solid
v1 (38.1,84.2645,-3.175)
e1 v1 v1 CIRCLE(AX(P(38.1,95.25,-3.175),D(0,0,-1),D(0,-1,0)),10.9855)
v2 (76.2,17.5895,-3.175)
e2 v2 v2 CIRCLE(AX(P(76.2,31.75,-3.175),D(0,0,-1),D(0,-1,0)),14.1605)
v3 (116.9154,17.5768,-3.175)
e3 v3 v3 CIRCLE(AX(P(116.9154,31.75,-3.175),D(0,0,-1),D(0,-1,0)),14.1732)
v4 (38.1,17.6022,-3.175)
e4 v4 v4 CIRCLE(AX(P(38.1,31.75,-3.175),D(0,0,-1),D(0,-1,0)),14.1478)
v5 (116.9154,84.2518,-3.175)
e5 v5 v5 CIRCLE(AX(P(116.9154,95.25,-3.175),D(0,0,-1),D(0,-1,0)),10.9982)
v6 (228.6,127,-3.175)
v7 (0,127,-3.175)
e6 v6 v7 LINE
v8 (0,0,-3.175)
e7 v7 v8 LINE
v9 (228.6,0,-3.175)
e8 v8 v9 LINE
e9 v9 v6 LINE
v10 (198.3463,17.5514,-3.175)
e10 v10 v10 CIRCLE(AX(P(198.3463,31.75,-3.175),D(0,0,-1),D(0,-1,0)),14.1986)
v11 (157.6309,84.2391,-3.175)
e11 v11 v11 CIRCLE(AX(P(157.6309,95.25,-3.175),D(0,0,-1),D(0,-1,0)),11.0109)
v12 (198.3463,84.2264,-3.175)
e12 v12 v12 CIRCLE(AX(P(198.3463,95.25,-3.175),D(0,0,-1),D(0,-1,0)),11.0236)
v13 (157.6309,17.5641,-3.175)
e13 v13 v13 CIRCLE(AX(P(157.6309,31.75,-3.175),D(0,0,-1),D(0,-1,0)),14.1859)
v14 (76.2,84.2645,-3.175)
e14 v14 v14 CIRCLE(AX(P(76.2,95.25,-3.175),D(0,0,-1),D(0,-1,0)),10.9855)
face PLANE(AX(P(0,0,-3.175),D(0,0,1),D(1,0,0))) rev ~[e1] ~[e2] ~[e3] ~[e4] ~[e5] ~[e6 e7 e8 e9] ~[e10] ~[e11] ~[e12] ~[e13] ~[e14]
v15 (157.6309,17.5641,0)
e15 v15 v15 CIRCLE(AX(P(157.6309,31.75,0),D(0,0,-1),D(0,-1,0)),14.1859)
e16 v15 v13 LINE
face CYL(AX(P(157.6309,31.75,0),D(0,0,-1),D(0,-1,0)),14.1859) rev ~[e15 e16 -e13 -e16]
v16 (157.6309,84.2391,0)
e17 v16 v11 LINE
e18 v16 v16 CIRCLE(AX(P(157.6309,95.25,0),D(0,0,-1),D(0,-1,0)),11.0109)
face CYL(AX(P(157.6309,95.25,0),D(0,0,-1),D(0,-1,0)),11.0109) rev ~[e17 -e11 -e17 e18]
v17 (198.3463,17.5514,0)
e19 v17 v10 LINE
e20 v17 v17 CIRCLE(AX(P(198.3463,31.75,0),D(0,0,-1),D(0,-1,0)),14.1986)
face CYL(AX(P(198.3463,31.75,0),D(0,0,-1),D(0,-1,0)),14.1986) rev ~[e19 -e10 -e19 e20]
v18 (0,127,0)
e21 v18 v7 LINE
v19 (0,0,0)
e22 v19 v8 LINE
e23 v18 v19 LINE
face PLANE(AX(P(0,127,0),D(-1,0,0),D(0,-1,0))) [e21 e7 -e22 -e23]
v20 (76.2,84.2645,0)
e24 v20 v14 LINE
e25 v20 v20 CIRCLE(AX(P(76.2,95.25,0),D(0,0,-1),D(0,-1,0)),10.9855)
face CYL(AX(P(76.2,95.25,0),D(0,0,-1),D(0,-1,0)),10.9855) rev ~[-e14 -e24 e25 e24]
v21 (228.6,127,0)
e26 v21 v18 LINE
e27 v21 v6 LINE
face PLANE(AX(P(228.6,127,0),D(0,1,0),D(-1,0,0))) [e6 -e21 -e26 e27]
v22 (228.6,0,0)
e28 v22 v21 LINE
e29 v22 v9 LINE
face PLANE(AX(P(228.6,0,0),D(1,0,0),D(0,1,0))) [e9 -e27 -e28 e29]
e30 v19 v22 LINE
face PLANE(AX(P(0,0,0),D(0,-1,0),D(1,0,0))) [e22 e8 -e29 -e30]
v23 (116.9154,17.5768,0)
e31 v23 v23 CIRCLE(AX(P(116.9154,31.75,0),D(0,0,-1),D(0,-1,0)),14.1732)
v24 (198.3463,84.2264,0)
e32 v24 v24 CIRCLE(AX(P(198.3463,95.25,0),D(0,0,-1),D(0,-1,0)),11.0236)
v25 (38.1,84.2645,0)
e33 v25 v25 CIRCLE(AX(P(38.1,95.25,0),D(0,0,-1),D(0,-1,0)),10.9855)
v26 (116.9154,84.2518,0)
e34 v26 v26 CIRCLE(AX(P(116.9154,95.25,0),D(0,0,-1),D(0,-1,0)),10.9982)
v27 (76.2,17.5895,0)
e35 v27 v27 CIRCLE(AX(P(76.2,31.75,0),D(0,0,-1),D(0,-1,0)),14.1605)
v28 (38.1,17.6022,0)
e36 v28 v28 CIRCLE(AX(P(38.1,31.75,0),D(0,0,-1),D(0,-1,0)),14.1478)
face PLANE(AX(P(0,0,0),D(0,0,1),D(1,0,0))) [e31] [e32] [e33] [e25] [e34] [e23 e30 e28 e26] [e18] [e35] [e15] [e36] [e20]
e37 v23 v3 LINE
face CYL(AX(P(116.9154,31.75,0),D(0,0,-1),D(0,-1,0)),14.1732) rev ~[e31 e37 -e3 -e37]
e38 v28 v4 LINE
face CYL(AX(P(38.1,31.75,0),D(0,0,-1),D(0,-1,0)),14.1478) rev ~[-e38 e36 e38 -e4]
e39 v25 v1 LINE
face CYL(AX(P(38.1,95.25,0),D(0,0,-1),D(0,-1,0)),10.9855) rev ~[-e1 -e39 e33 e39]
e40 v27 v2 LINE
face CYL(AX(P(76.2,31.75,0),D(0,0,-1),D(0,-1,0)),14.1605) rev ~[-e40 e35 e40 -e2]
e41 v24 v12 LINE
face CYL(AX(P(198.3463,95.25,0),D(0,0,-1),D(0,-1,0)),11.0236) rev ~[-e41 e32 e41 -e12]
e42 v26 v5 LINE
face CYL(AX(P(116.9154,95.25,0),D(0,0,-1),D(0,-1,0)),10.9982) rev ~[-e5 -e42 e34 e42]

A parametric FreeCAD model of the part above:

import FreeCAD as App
import Part
import Sketcher
from FreeCAD import Vector
Q = App.Units.Quantity


def add_polygon(sketch, points):
    """Adds a closed chain of lines whose ends are joined by coincident constraints."""
    first, n = sketch.GeometryCount, len(points)
    for a, b in zip(points, points[1:] + points[:1]):
        sketch.addGeometry(Part.LineSegment(App.Vector(*a, 0), App.Vector(*b, 0)), False)
    for i in range(n):
        sketch.addConstraint(Sketcher.Constraint("Coincident", first + i, 2, first + (i + 1) % n, 1))

doc = App.newDocument("Part")
params = doc.addObject("Spreadsheet::Sheet", "Params")
for row, (alias, value) in enumerate([
    ("sketch1_width", "9 in"),
    ("sketch1_height", "5 in"),
    ("pad1_length", "0.125 in"),
    ("sketch2_diameter", "1.114 in"),
    ("hole_diameter", "1.114 in"),
    ("sketch3_diameter", "1.115 in"),
    ("hole2_diameter", "1.115 in"),
    ("sketch4_diameter", "1.116 in"),
    ("hole3_diameter", "1.116 in"),
    ("sketch5_diameter", "1.117 in"),
    ("hole4_diameter", "1.117 in"),
    ("sketch6_diameter", "1.118 in"),
    ("hole5_diameter", "1.118 in"),
    ("sketch7_diameter", "0.865 in"),
    ("hole6_diameter", "0.865 in"),
    ("sketch8_diameter", "0.865 in"),
    ("hole7_diameter", "0.865 in"),
    ("sketch9_diameter", "0.866 in"),
    ("hole8_diameter", "0.866 in"),
    ("sketch10_diameter", "0.867 in"),
    ("hole9_diameter", "0.867 in"),
    ("sketch11_diameter", "0.868 in"),
    ("hole10_diameter", "0.868 in"),
], start=1):
    params.set(f"A{row}", alias)
    params.set(f"B{row}", "=" + value)
    params.setAlias(f"B{row}", alias)

body = doc.addObject("PartDesign::Body", "Body")

sketch1 = body.newObject("Sketcher::SketchObject", "Sketch")
sketch1.AttachmentSupport = (doc.getObject("XY_Plane"), [""])
sketch1.MapMode = "FlatFace"
add_polygon(sketch1, [(0, 127), (0, 0), (229, 0), (229, 127)])
sketch1.addConstraint(Sketcher.Constraint("Vertical", 0))
sketch1.addConstraint(Sketcher.Constraint("Horizontal", 1))
sketch1.addConstraint(Sketcher.Constraint("Vertical", 2))
sketch1.addConstraint(Sketcher.Constraint("Horizontal", 3))
sketch1.addConstraint(Sketcher.Constraint("Coincident", 0, 2, -1, 1))
sketch1.addConstraint(Sketcher.Constraint("DistanceX", 1, 1, 1, 2, Q("9 in")))
sketch1.addConstraint(Sketcher.Constraint("DistanceY", 0, 2, 0, 1, Q("5 in")))
sketch1.setExpression("Constraints[9]", "Params.sketch1_width")
sketch1.setExpression("Constraints[10]", "Params.sketch1_height")
pad1 = body.newObject("PartDesign::Pad", "Pad")
pad1.Profile = sketch1
pad1.setExpression("Length", "Params.pad1_length")
pad1.Reversed = True

sketch2 = body.newObject("Sketcher::SketchObject", "Sketch001")
sketch2.AttachmentSupport = (doc.getObject("XY_Plane"), [""])
sketch2.MapMode = "FlatFace"
sketch2.addGeometry(Part.Circle(Vector(38, 32, 0), Vector(0, 0, 1), 14), False)
sketch2.addConstraint(Sketcher.Constraint("Diameter", 0, Q("1.114 in")))
sketch2.addConstraint(Sketcher.Constraint("DistanceX", -1, 1, 0, 3, Q("1.5 in")))
sketch2.addConstraint(Sketcher.Constraint("DistanceY", -1, 1, 0, 3, Q("1.25 in")))
sketch2.setExpression("Constraints[0]", "Params.sketch2_diameter")
doc.recompute()
hole = body.newObject("PartDesign::Hole", "Hole")
hole.Profile = sketch2
hole.ThreadType = "None"
hole.setExpression("Diameter", "Params.hole_diameter")
hole.DepthType = "ThroughAll"

sketch3 = body.newObject("Sketcher::SketchObject", "Sketch002")
sketch3.AttachmentSupport = (doc.getObject("XY_Plane"), [""])
sketch3.MapMode = "FlatFace"
sketch3.addGeometry(Part.Circle(Vector(76, 32, 0), Vector(0, 0, 1), 14), False)
sketch3.addConstraint(Sketcher.Constraint("Diameter", 0, Q("1.115 in")))
sketch3.addConstraint(Sketcher.Constraint("DistanceX", -1, 1, 0, 3, Q("3 in")))
sketch3.addConstraint(Sketcher.Constraint("DistanceY", -1, 1, 0, 3, Q("1.25 in")))
sketch3.setExpression("Constraints[0]", "Params.sketch3_diameter")
doc.recompute()
hole2 = body.newObject("PartDesign::Hole", "Hole001")
hole2.Profile = sketch3
hole2.ThreadType = "None"
hole2.setExpression("Diameter", "Params.hole2_diameter")
hole2.DepthType = "ThroughAll"

sketch4 = body.newObject("Sketcher::SketchObject", "Sketch003")
sketch4.AttachmentSupport = (doc.getObject("XY_Plane"), [""])
sketch4.MapMode = "FlatFace"
sketch4.addGeometry(Part.Circle(Vector(117, 32, 0), Vector(0, 0, 1), 14), False)
sketch4.addConstraint(Sketcher.Constraint("Diameter", 0, Q("1.116 in")))
sketch4.addConstraint(Sketcher.Constraint("DistanceY", -1, 1, 0, 3, Q("1.25 in")))
sketch4.addConstraint(Sketcher.Constraint("DistanceX", -1, 1, 0, 3, 116.9154))
sketch4.setExpression("Constraints[0]", "Params.sketch4_diameter")
doc.recompute()
hole3 = body.newObject("PartDesign::Hole", "Hole002")
hole3.Profile = sketch4
hole3.ThreadType = "None"
hole3.setExpression("Diameter", "Params.hole3_diameter")
hole3.DepthType = "ThroughAll"

sketch5 = body.newObject("Sketcher::SketchObject", "Sketch004")
sketch5.AttachmentSupport = (doc.getObject("XY_Plane"), [""])
sketch5.MapMode = "FlatFace"
sketch5.addGeometry(Part.Circle(Vector(158, 32, 0), Vector(0, 0, 1), 14), False)
sketch5.addConstraint(Sketcher.Constraint("Diameter", 0, Q("1.117 in")))
sketch5.addConstraint(Sketcher.Constraint("DistanceY", -1, 1, 0, 3, Q("1.25 in")))
sketch5.addConstraint(Sketcher.Constraint("DistanceX", -1, 1, 0, 3, 157.631))
sketch5.setExpression("Constraints[0]", "Params.sketch5_diameter")
doc.recompute()
hole4 = body.newObject("PartDesign::Hole", "Hole003")
hole4.Profile = sketch5
hole4.ThreadType = "None"
hole4.setExpression("Diameter", "Params.hole4_diameter")
hole4.DepthType = "ThroughAll"

sketch6 = body.newObject("Sketcher::SketchObject", "Sketch005")
sketch6.AttachmentSupport = (doc.getObject("XY_Plane"), [""])
sketch6.MapMode = "FlatFace"
sketch6.addGeometry(Part.Circle(Vector(198, 32, 0), Vector(0, 0, 1), 14), False)
sketch6.addConstraint(Sketcher.Constraint("Diameter", 0, Q("1.118 in")))
sketch6.addConstraint(Sketcher.Constraint("DistanceY", -1, 1, 0, 3, Q("1.25 in")))
sketch6.addConstraint(Sketcher.Constraint("DistanceX", -1, 1, 0, 3, Q("7.8089 in")))
sketch6.setExpression("Constraints[0]", "Params.sketch6_diameter")
doc.recompute()
hole5 = body.newObject("PartDesign::Hole", "Hole004")
hole5.Profile = sketch6
hole5.ThreadType = "None"
hole5.setExpression("Diameter", "Params.hole5_diameter")
hole5.DepthType = "ThroughAll"

sketch7 = body.newObject("Sketcher::SketchObject", "Sketch006")
sketch7.AttachmentSupport = (doc.getObject("XY_Plane"), [""])
sketch7.MapMode = "FlatFace"
sketch7.addGeometry(Part.Circle(Vector(38, 95, 0), Vector(0, 0, 1), 11), False)
sketch7.addConstraint(Sketcher.Constraint("Diameter", 0, Q("0.865 in")))
sketch7.addConstraint(Sketcher.Constraint("DistanceX", -1, 1, 0, 3, Q("1.5 in")))
sketch7.addConstraint(Sketcher.Constraint("DistanceY", -1, 1, 0, 3, Q("3.75 in")))
sketch7.setExpression("Constraints[0]", "Params.sketch7_diameter")
doc.recompute()
hole6 = body.newObject("PartDesign::Hole", "Hole005")
hole6.Profile = sketch7
hole6.ThreadType = "None"
hole6.setExpression("Diameter", "Params.hole6_diameter")
hole6.DepthType = "ThroughAll"

sketch8 = body.newObject("Sketcher::SketchObject", "Sketch007")
sketch8.AttachmentSupport = (doc.getObject("XY_Plane"), [""])
sketch8.MapMode = "FlatFace"
sketch8.addGeometry(Part.Circle(Vector(76, 95, 0), Vector(0, 0, 1), 11), False)
sketch8.addConstraint(Sketcher.Constraint("Diameter", 0, Q("0.865 in")))
sketch8.addConstraint(Sketcher.Constraint("DistanceX", -1, 1, 0, 3, Q("3 in")))
sketch8.addConstraint(Sketcher.Constraint("DistanceY", -1, 1, 0, 3, Q("3.75 in")))
sketch8.setExpression("Constraints[0]", "Params.sketch8_diameter")
doc.recompute()
hole7 = body.newObject("PartDesign::Hole", "Hole006")
hole7.Profile = sketch8
hole7.ThreadType = "None"
hole7.setExpression("Diameter", "Params.hole7_diameter")
hole7.DepthType = "ThroughAll"

sketch9 = body.newObject("Sketcher::SketchObject", "Sketch008")
sketch9.AttachmentSupport = (doc.getObject("XY_Plane"), [""])
sketch9.MapMode = "FlatFace"
sketch9.addGeometry(Part.Circle(Vector(117, 95, 0), Vector(0, 0, 1), 11), False)
sketch9.addConstraint(Sketcher.Constraint("Diameter", 0, Q("0.866 in")))
sketch9.addConstraint(Sketcher.Constraint("DistanceY", -1, 1, 0, 3, Q("3.75 in")))
sketch9.addConstraint(Sketcher.Constraint("DistanceX", -1, 1, 0, 3, 116.9154))
sketch9.setExpression("Constraints[0]", "Params.sketch9_diameter")
doc.recompute()
hole8 = body.newObject("PartDesign::Hole", "Hole007")
hole8.Profile = sketch9
hole8.ThreadType = "None"
hole8.setExpression("Diameter", "Params.hole8_diameter")
hole8.DepthType = "ThroughAll"

sketch10 = body.newObject("Sketcher::SketchObject", "Sketch009")
sketch10.AttachmentSupport = (doc.getObject("XY_Plane"), [""])
sketch10.MapMode = "FlatFace"
sketch10.addGeometry(Part.Circle(Vector(158, 95, 0), Vector(0, 0, 1), 11), False)
sketch10.addConstraint(Sketcher.Constraint("Diameter", 0, Q("0.867 in")))
sketch10.addConstraint(Sketcher.Constraint("DistanceY", -1, 1, 0, 3, Q("3.75 in")))
sketch10.addConstraint(Sketcher.Constraint("DistanceX", -1, 1, 0, 3, 157.631))
sketch10.setExpression("Constraints[0]", "Params.sketch10_diameter")
doc.recompute()
hole9 = body.newObject("PartDesign::Hole", "Hole008")
hole9.Profile = sketch10
hole9.ThreadType = "None"
hole9.setExpression("Diameter", "Params.hole9_diameter")
hole9.DepthType = "ThroughAll"

sketch11 = body.newObject("Sketcher::SketchObject", "Sketch010")
sketch11.AttachmentSupport = (doc.getObject("XY_Plane"), [""])
sketch11.MapMode = "FlatFace"
sketch11.addGeometry(Part.Circle(Vector(198, 95, 0), Vector(0, 0, 1), 11), False)
sketch11.addConstraint(Sketcher.Constraint("Diameter", 0, Q("0.868 in")))
sketch11.addConstraint(Sketcher.Constraint("DistanceY", -1, 1, 0, 3, Q("3.75 in")))
sketch11.addConstraint(Sketcher.Constraint("DistanceX", -1, 1, 0, 3, Q("7.8089 in")))
sketch11.setExpression("Constraints[0]", "Params.sketch11_diameter")
doc.recompute()
hole10 = body.newObject("PartDesign::Hole", "Hole009")
hole10.Profile = sketch11
hole10.ThreadType = "None"
hole10.setExpression("Diameter", "Params.hole10_diameter")
hole10.DepthType = "ThroughAll"

doc.recompute()
